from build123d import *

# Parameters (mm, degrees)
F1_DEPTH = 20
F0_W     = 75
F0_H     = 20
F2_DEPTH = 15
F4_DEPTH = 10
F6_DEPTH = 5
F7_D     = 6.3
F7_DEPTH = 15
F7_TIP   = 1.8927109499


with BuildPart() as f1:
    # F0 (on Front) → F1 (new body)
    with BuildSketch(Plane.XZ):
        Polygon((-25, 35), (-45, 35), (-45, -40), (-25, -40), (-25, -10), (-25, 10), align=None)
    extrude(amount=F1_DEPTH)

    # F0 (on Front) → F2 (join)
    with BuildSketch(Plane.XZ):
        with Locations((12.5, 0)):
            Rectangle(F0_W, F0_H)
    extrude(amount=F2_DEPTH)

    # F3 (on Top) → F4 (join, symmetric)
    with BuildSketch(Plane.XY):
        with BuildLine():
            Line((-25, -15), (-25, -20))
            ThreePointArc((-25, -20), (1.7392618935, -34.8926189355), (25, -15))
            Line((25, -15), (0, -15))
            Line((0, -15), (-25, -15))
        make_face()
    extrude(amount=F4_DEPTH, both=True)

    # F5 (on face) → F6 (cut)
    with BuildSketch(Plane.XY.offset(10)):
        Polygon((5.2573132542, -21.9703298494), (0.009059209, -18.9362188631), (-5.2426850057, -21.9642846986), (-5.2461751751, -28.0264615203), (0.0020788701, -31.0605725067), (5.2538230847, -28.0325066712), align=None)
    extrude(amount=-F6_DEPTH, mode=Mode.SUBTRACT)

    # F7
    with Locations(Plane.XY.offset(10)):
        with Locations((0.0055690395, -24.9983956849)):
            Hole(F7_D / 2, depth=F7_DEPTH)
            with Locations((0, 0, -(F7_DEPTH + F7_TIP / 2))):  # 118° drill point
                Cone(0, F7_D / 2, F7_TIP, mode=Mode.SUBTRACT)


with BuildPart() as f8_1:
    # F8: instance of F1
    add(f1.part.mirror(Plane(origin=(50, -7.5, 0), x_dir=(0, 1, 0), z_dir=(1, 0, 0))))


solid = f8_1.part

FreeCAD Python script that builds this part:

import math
import FreeCAD as App
import Part
import Sketcher
from FreeCAD import Vector


def add_polygon(sketch, points):
    """Adds a closed chain of lines whose ends are joined by coincident constraints."""
    first, n = sketch.GeometryCount, len(points)
    for a, b in zip(points, points[1:] + points[:1]):
        sketch.addGeometry(Part.LineSegment(App.Vector(*a, 0), App.Vector(*b, 0)), False)
    for i in range(n):
        sketch.addConstraint(Sketcher.Constraint("Coincident", first + i, 2, first + (i + 1) % n, 1))

doc = App.newDocument("Part")
params = doc.addObject("Spreadsheet::Sheet", "Params")
for row, (alias, value) in enumerate([
    ("sketch1_width", "20 mm"),
    ("sketch1_height", "75 mm"),
    ("pad1_length", "20 mm"),
    ("sketch2_width", "75 mm"),
    ("sketch2_height", "20 mm"),
    ("pad2_length", "15 mm"),
    ("sketch3_width", "50 mm"),
    ("sketch3_height", "5 mm"),
    ("pad3_length", "20 mm"),
    ("pocket1_length", "5 mm"),
    ("sketch5_diameter", "6.3 mm"),
    ("hole_diameter", "6.3 mm"),
    ("hole_depth", "15 mm"),
], start=1):
    params.set(f"A{row}", alias)
    params.set(f"B{row}", "=" + value)
    params.setAlias(f"B{row}", alias)

body = doc.addObject("PartDesign::Body", "Body")

sketch1 = body.newObject("Sketcher::SketchObject", "Sketch")
sketch1.AttachmentSupport = (doc.getObject("XZ_Plane"), [""])
sketch1.MapMode = "FlatFace"
add_polygon(sketch1, [(-25, 35), (-45, 35), (-45, -40), (-25, -40)])
sketch1.addConstraint([
    Sketcher.Constraint("Horizontal", 0),
    Sketcher.Constraint("Vertical", 1),
    Sketcher.Constraint("Horizontal", 2),
    Sketcher.Constraint("Vertical", 3),
    Sketcher.Constraint("DistanceX", 0, 2, 0, 1, 20.0),
    Sketcher.Constraint("DistanceY", 1, 2, 1, 1, 75.0),
    Sketcher.Constraint("DistanceX", 0, 2, -1, 1, 45.0),
    Sketcher.Constraint("DistanceY", -1, 1, 0, 2, 35.0),
])
sketch1.setExpression("Constraints[8]", "Params.sketch1_width")
sketch1.setExpression("Constraints[9]", "Params.sketch1_height")
pad1 = body.newObject("PartDesign::Pad", "Pad")
pad1.Profile = sketch1
pad1.setExpression("Length", "Params.pad1_length")

sketch2 = body.newObject("Sketcher::SketchObject", "Sketch001")
sketch2.AttachmentSupport = (doc.getObject("XZ_Plane"), [""])
sketch2.MapMode = "FlatFace"
add_polygon(sketch2, [(-25, 10), (-25, -10), (50, -10), (50, 10)])
sketch2.addConstraint([
    Sketcher.Constraint("Vertical", 0),
    Sketcher.Constraint("Horizontal", 1),
    Sketcher.Constraint("Vertical", 2),
    Sketcher.Constraint("Horizontal", 3),
    Sketcher.Constraint("DistanceX", 1, 1, 1, 2, 75.0),
    Sketcher.Constraint("DistanceY", 0, 2, 0, 1, 20.0),
    Sketcher.Constraint("DistanceX", 0, 2, -1, 1, 25.0),
    Sketcher.Constraint("DistanceY", 0, 2, -1, 1, 10.0),
])
sketch2.setExpression("Constraints[8]", "Params.sketch2_width")
sketch2.setExpression("Constraints[9]", "Params.sketch2_height")
pad2 = body.newObject("PartDesign::Pad", "Pad001")
pad2.Profile = sketch2
pad2.setExpression("Length", "Params.pad2_length")

sketch3 = body.newObject("Sketcher::SketchObject", "Sketch002")
sketch3.AttachmentSupport = (doc.getObject("XY_Plane"), [""])
sketch3.MapMode = "FlatFace"
sketch3.addGeometry([
    Part.LineSegment(Vector(-25, -15, 0), Vector(-25, -20, 0)),
    Part.ArcOfCircle(Part.Circle(Vector(-0.927108, -8.228918, 0), Vector(0, 0, 1), 26.796688), math.radians(-153.942446), math.radians(-14.636368)),
    Part.LineSegment(Vector(25, -15, 0), Vector(-25, -15, 0)),
], False)
sketch3.addConstraint([
    Sketcher.Constraint("Coincident", 0, 2, 1, 1),
    Sketcher.Constraint("Coincident", 1, 2, 2, 1),
    Sketcher.Constraint("Coincident", 2, 2, 0, 1),
    Sketcher.Constraint("Vertical", 0),
    Sketcher.Constraint("Horizontal", 2),
    Sketcher.Constraint("DistanceX", 2, 2, 2, 1, 50.0),
    Sketcher.Constraint("DistanceY", 0, 2, 0, 1, 5.0),
    Sketcher.Constraint("DistanceX", 0, 2, -1, 1, 25.0),
    Sketcher.Constraint("DistanceY", 0, 2, -1, 1, 20.0),
    Sketcher.Constraint("Radius", 1, 26.796688),
])
sketch3.setExpression("Constraints[5]", "Params.sketch3_width")
sketch3.setExpression("Constraints[6]", "Params.sketch3_height")
pad3 = body.newObject("PartDesign::Pad", "Pad002")
pad3.Profile = sketch3
pad3.setExpression("Length", "Params.pad3_length")
pad3.Midplane = True

sketch4 = body.newObject("Sketcher::SketchObject", "Sketch003")
sketch4.AttachmentSupport = (doc.getObject("XY_Plane"), [""])
sketch4.MapMode = "FlatFace"
sketch4.AttachmentOffset = App.Placement(Vector(0, 0, 10), App.Rotation())
add_polygon(sketch4, [(5.257313, -21.97033), (0.009059, -18.936219), (-5.242685, -21.964285), (-5.246175, -28.026462), (0.002079, -31.060573), (5.253823, -28.032507)])
sketch4.addConstraint([
    Sketcher.Constraint("Parallel", 0, 3),
    Sketcher.Constraint("Parallel", 1, 4),
    Sketcher.Constraint("Parallel", 2, 5),
    Sketcher.Constraint("Equal", 0, 1),
    Sketcher.Constraint("Equal", 1, 2),
    Sketcher.Constraint("Equal", 2, 3),
    Sketcher.Constraint("DistanceX", 2, 2, 4, 2, 10.499998),
    Sketcher.Constraint("DistanceX", -1, 1, 0, 2, 0.009059),
    Sketcher.Constraint("DistanceY", 0, 2, -1, 1, 18.936219),
    Sketcher.Constraint("DistanceY", 2, 2, -1, 1, 28.026462),
    Sketcher.Constraint("DistanceX", -1, 1, 3, 2, 0.002079),
    Sketcher.Constraint("DistanceY", 5, 2, -1, 1, 21.97033),
])
pocket1 = body.newObject("PartDesign::Pocket", "Pocket")
pocket1.Profile = sketch4
pocket1.setExpression("Length", "Params.pocket1_length")

sketch5 = body.newObject("Sketcher::SketchObject", "Sketch004")
sketch5.AttachmentSupport = (doc.getObject("XY_Plane"), [""])
sketch5.MapMode = "FlatFace"
sketch5.AttachmentOffset = App.Placement(Vector(0, 0, 10), App.Rotation())
sketch5.addGeometry(Part.Circle(Vector(0.005569, -24.998396, 0), Vector(0, 0, 1), 3.15), False)
sketch5.addConstraint([
    Sketcher.Constraint("Diameter", 0, 6.3),
    Sketcher.Constraint("DistanceX", -1, 1, 0, 3, 0.005569),
    Sketcher.Constraint("DistanceY", 0, 3, -1, 1, 24.998396),
])
sketch5.setExpression("Constraints[0]", "Params.sketch5_diameter")
doc.recompute()
hole = body.newObject("PartDesign::Hole", "Hole")
hole.Profile = sketch5
hole.ThreadType = "None"
hole.setExpression("Diameter", "Params.hole_diameter")
hole.DepthType = "Dimension"
hole.setExpression("Depth", "Params.hole_depth")
hole.DrillPoint = "Angled"
hole.DrillPointAngle = 118
body2 = doc.addObject("PartDesign::Body", "Body001")
doc.recompute()

mirroring = doc.addObject("Part::Mirroring", "Mirroring")
mirroring.Source = body
mirroring.Base = Vector(50, -7.5, 0)
mirroring.Normal = Vector(1, 0, 0)
body2.BaseFeature = mirroring
doc.recompute()
body.Visibility = False
mirroring.Visibility = False

doc.recompute()
